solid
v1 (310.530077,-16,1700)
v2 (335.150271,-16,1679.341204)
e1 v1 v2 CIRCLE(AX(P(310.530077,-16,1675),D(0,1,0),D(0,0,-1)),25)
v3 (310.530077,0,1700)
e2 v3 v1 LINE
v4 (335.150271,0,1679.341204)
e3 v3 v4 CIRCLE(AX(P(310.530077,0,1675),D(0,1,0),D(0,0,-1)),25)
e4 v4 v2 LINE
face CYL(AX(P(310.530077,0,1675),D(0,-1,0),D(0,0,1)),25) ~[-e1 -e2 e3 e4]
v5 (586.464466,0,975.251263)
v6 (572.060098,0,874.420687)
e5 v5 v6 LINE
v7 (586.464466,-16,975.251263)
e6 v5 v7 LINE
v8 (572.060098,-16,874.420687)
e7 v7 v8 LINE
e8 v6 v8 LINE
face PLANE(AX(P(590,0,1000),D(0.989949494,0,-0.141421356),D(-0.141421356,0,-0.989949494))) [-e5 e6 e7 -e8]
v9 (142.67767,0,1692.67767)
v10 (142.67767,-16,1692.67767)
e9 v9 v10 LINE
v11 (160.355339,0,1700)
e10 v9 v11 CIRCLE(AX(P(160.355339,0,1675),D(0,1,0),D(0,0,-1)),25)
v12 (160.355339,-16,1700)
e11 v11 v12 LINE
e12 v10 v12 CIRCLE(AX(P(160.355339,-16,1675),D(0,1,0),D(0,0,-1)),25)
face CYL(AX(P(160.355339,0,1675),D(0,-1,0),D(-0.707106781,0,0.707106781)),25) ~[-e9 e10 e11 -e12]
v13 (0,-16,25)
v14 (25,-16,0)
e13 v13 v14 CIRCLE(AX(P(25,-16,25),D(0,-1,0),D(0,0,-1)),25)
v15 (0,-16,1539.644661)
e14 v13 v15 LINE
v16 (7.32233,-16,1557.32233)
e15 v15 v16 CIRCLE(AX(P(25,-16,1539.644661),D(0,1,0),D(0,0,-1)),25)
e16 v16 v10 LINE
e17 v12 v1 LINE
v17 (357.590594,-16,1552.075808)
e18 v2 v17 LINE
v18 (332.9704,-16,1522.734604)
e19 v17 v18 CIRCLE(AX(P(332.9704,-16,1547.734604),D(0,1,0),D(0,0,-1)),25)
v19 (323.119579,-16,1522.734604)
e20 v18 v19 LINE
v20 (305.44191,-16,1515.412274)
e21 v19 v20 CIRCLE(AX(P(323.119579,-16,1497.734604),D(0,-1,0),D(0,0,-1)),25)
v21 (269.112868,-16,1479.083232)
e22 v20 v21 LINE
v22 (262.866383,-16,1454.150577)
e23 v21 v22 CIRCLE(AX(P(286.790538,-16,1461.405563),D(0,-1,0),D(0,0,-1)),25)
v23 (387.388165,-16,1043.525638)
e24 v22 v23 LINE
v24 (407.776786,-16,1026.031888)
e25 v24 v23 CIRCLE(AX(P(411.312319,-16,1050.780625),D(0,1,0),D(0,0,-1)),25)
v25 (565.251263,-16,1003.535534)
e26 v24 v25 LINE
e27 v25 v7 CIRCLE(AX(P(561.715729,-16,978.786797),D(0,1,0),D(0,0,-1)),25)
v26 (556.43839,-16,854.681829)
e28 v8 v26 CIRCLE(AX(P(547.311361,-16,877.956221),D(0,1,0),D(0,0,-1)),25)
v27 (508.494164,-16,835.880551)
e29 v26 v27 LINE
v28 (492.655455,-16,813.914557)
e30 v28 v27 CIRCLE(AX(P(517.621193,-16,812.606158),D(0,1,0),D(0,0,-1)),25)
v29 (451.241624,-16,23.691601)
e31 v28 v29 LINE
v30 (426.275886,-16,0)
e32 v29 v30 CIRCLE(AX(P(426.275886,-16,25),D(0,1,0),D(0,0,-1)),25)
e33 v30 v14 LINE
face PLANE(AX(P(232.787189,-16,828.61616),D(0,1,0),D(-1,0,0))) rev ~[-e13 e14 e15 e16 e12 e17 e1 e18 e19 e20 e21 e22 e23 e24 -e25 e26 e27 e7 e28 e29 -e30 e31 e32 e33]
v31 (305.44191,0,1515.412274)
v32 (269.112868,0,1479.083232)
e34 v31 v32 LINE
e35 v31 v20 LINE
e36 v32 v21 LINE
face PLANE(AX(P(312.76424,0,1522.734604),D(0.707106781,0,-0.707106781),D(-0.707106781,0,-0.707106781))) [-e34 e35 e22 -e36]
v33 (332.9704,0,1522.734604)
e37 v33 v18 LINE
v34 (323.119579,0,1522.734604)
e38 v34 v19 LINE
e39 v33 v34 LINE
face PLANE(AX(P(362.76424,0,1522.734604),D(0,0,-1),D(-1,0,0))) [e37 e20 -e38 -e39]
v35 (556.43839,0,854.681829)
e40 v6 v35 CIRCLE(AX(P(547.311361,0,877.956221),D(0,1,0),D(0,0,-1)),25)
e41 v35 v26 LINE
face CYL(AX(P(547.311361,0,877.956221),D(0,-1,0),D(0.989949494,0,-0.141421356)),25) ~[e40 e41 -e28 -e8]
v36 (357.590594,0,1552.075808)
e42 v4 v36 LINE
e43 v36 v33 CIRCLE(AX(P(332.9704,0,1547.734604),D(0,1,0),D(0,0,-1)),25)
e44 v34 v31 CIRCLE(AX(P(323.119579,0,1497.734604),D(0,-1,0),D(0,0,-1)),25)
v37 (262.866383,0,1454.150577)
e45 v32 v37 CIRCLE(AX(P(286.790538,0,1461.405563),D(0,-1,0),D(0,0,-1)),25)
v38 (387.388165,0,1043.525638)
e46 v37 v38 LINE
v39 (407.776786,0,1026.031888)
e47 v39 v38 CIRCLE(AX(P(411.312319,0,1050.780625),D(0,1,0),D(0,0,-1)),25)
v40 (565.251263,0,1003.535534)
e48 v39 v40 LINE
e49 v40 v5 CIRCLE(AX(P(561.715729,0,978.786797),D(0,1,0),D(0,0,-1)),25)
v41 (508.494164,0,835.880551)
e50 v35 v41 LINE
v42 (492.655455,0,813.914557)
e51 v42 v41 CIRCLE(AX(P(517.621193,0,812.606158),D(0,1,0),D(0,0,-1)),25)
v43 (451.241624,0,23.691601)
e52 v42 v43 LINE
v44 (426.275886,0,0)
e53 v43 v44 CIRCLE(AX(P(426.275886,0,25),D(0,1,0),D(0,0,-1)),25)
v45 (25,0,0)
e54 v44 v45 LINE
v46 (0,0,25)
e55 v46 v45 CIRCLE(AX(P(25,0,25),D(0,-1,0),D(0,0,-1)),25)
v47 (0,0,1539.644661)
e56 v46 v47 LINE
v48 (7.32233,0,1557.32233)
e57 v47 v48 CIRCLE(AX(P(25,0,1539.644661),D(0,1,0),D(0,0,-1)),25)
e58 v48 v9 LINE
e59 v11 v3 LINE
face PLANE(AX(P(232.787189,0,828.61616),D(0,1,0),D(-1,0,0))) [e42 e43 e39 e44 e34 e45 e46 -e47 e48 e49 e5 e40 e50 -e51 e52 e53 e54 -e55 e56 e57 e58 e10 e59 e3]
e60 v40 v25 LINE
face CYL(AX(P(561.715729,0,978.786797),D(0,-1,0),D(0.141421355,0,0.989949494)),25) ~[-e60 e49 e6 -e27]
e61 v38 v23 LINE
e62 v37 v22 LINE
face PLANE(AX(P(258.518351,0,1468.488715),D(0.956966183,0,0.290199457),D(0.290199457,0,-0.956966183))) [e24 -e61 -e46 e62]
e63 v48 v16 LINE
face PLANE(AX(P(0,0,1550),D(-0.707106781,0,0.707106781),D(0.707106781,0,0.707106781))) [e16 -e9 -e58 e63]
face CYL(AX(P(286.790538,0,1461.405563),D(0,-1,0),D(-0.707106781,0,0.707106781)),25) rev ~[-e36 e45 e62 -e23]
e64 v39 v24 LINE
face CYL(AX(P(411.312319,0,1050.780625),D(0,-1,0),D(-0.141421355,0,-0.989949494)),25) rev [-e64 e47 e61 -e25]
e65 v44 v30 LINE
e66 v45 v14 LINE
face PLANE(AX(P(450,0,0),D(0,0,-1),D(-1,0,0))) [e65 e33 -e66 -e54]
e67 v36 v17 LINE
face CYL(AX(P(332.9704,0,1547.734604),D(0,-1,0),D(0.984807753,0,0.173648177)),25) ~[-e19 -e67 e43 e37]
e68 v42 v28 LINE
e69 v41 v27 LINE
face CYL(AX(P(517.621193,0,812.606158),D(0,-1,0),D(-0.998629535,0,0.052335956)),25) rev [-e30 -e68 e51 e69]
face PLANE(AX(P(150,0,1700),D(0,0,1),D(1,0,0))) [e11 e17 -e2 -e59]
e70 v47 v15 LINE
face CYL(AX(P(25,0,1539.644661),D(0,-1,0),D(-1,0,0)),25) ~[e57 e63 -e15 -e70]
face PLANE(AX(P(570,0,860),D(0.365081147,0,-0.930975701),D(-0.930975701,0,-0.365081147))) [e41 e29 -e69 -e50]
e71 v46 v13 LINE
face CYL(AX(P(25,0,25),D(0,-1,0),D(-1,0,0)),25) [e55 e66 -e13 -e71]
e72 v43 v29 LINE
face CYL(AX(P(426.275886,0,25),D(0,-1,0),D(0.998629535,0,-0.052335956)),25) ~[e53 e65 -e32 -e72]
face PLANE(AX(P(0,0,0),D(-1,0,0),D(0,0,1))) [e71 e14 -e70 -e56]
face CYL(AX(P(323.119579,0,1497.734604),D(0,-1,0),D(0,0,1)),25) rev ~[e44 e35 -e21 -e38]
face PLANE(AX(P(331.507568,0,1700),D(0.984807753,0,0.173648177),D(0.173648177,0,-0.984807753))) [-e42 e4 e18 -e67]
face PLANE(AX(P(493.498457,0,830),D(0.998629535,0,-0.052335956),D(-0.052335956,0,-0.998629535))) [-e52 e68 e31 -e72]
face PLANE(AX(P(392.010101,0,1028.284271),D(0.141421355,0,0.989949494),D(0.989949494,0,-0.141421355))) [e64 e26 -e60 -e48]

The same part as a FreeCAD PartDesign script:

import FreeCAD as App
import Part
import Sketcher

V = App.Vector
Q = App.Units.Quantity


def edges_at(feature, points):
    """Names of the edges that pass closest to the given points."""
    edges = feature.Shape.Edges
    near = lambda p: min(range(len(edges)), key=lambda i: edges[i].distToShape(Part.Vertex(*p))[0])
    return sorted({f"Edge{near(p) + 1}" for p in points})

doc = App.newDocument("Part")
body = doc.addObject("PartDesign::Body", "Body")

sketch1 = body.newObject("Sketcher::SketchObject", "Sketch")
sketch1.AttachmentSupport = (doc.getObject("XZ_Plane"), [""])
sketch1.MapMode = "FlatFace"
sketch1.addGeometry([
    Part.LineSegment(V(0, 1550, 0), V(0, 0, 0)),
    Part.LineSegment(V(0, 0, 0), V(450, 0, 0)),
    Part.LineSegment(V(450, 0, 0), V(493, 830, 0)),
    Part.LineSegment(V(493, 830, 0), V(570, 860, 0)),
    Part.LineSegment(V(570, 860, 0), V(590, 1000, 0)),
    Part.LineSegment(V(590, 1000, 0), V(392, 1028, 0)),
    Part.LineSegment(V(392, 1028, 0), V(259, 1468, 0)),
    Part.LineSegment(V(259, 1468, 0), V(313, 1523, 0)),
    Part.LineSegment(V(313, 1523, 0), V(363, 1523, 0)),
    Part.LineSegment(V(363, 1523, 0), V(332, 1700, 0)),
    Part.LineSegment(V(332, 1700, 0), V(150, 1700, 0)),
    Part.LineSegment(V(150, 1700, 0), V(0, 1550, 0)),
], False)
sketch1.addConstraint([
    Sketcher.Constraint("Coincident", 0, 2, 1, 1),
    Sketcher.Constraint("Coincident", 1, 2, 2, 1),
    Sketcher.Constraint("Coincident", 2, 2, 3, 1),
    Sketcher.Constraint("Coincident", 3, 2, 4, 1),
    Sketcher.Constraint("Coincident", 4, 2, 5, 1),
    Sketcher.Constraint("Coincident", 5, 2, 6, 1),
    Sketcher.Constraint("Coincident", 6, 2, 7, 1),
    Sketcher.Constraint("Coincident", 7, 2, 8, 1),
    Sketcher.Constraint("Coincident", 8, 2, 9, 1),
    Sketcher.Constraint("Coincident", 9, 2, 10, 1),
    Sketcher.Constraint("Coincident", 10, 2, 11, 1),
    Sketcher.Constraint("Coincident", 11, 2, 0, 1),
    Sketcher.Constraint("Vertical", 0),
    Sketcher.Constraint("Horizontal", 1),
    Sketcher.Constraint("Horizontal", 8),
    Sketcher.Constraint("Horizontal", 10),
    Sketcher.Constraint("Coincident", 0, 2, -1, 1),
    Sketcher.Constraint("Perpendicular", 4, 5),
    Sketcher.Constraint("Parallel", 7, 11),
    Sketcher.Constraint("DistanceX", 1, 1, 1, 2, Q("450 mm")),
    Sketcher.Constraint("DistanceX", 8, 1, 8, 2, Q("50 mm")),
    Sketcher.Constraint("DistanceY", 0, 2, 0, 1, Q("1550 mm")),
    Sketcher.Constraint("Angle", 2, Q("87 deg")),
    Sketcher.Constraint("Angle", 7, Q("45 deg")),
    Sketcher.Constraint("Angle", 9, Q("100 deg")),
    Sketcher.Constraint("Distance", 5, Q("200 mm")),
    Sketcher.Constraint("Distance", 6, Q("460 mm")),
    Sketcher.Constraint("Distance", 9, Q("180 mm")),
    Sketcher.Constraint("DistanceY", -1, 1, 2, 2, Q("830 mm")),
    Sketcher.Constraint("DistanceX", -1, 1, 3, 2, Q("570 mm")),
    Sketcher.Constraint("DistanceY", -1, 1, 3, 2, Q("860 mm")),
    Sketcher.Constraint("DistanceX", -1, 1, 4, 2, Q("590 mm")),
    Sketcher.Constraint("DistanceY", -1, 1, 4, 2, Q("1000 mm")),
    Sketcher.Constraint("DistanceY", -1, 1, 9, 2, Q("1700 mm")),
    Sketcher.Constraint("DistanceX", 10, 2, 10, 1, Q("181.507568 mm")),
])
pad1 = body.newObject("PartDesign::Pad", "Pad")
pad1.Profile = sketch1
pad1.Length = 16
doc.recompute()

fillet = body.newObject("PartDesign::Fillet", "Fillet")
fillet.Base = (pad1, edges_at(pad1, [
    (362.764, -8, 1522.735),
    (331.508, -8, 1700),
    (150, -8, 1700),
    (0, -8, 1550),
    (0, -8, 0),
    (450, -8, 0),
    (590, -8, 1000),
    (570, -8, 860),
]))
fillet.Radius = 25
doc.recompute()

fillet2 = body.newObject("PartDesign::Fillet", "Fillet001")
fillet2.Base = (fillet, edges_at(fillet, [
    (493.498, -8, 830),
    (392.01, -8, 1028.284),
    (258.518, -8, 1468.489),
    (312.764, -8, 1522.735),
]))
fillet2.Radius = 25

doc.recompute()
